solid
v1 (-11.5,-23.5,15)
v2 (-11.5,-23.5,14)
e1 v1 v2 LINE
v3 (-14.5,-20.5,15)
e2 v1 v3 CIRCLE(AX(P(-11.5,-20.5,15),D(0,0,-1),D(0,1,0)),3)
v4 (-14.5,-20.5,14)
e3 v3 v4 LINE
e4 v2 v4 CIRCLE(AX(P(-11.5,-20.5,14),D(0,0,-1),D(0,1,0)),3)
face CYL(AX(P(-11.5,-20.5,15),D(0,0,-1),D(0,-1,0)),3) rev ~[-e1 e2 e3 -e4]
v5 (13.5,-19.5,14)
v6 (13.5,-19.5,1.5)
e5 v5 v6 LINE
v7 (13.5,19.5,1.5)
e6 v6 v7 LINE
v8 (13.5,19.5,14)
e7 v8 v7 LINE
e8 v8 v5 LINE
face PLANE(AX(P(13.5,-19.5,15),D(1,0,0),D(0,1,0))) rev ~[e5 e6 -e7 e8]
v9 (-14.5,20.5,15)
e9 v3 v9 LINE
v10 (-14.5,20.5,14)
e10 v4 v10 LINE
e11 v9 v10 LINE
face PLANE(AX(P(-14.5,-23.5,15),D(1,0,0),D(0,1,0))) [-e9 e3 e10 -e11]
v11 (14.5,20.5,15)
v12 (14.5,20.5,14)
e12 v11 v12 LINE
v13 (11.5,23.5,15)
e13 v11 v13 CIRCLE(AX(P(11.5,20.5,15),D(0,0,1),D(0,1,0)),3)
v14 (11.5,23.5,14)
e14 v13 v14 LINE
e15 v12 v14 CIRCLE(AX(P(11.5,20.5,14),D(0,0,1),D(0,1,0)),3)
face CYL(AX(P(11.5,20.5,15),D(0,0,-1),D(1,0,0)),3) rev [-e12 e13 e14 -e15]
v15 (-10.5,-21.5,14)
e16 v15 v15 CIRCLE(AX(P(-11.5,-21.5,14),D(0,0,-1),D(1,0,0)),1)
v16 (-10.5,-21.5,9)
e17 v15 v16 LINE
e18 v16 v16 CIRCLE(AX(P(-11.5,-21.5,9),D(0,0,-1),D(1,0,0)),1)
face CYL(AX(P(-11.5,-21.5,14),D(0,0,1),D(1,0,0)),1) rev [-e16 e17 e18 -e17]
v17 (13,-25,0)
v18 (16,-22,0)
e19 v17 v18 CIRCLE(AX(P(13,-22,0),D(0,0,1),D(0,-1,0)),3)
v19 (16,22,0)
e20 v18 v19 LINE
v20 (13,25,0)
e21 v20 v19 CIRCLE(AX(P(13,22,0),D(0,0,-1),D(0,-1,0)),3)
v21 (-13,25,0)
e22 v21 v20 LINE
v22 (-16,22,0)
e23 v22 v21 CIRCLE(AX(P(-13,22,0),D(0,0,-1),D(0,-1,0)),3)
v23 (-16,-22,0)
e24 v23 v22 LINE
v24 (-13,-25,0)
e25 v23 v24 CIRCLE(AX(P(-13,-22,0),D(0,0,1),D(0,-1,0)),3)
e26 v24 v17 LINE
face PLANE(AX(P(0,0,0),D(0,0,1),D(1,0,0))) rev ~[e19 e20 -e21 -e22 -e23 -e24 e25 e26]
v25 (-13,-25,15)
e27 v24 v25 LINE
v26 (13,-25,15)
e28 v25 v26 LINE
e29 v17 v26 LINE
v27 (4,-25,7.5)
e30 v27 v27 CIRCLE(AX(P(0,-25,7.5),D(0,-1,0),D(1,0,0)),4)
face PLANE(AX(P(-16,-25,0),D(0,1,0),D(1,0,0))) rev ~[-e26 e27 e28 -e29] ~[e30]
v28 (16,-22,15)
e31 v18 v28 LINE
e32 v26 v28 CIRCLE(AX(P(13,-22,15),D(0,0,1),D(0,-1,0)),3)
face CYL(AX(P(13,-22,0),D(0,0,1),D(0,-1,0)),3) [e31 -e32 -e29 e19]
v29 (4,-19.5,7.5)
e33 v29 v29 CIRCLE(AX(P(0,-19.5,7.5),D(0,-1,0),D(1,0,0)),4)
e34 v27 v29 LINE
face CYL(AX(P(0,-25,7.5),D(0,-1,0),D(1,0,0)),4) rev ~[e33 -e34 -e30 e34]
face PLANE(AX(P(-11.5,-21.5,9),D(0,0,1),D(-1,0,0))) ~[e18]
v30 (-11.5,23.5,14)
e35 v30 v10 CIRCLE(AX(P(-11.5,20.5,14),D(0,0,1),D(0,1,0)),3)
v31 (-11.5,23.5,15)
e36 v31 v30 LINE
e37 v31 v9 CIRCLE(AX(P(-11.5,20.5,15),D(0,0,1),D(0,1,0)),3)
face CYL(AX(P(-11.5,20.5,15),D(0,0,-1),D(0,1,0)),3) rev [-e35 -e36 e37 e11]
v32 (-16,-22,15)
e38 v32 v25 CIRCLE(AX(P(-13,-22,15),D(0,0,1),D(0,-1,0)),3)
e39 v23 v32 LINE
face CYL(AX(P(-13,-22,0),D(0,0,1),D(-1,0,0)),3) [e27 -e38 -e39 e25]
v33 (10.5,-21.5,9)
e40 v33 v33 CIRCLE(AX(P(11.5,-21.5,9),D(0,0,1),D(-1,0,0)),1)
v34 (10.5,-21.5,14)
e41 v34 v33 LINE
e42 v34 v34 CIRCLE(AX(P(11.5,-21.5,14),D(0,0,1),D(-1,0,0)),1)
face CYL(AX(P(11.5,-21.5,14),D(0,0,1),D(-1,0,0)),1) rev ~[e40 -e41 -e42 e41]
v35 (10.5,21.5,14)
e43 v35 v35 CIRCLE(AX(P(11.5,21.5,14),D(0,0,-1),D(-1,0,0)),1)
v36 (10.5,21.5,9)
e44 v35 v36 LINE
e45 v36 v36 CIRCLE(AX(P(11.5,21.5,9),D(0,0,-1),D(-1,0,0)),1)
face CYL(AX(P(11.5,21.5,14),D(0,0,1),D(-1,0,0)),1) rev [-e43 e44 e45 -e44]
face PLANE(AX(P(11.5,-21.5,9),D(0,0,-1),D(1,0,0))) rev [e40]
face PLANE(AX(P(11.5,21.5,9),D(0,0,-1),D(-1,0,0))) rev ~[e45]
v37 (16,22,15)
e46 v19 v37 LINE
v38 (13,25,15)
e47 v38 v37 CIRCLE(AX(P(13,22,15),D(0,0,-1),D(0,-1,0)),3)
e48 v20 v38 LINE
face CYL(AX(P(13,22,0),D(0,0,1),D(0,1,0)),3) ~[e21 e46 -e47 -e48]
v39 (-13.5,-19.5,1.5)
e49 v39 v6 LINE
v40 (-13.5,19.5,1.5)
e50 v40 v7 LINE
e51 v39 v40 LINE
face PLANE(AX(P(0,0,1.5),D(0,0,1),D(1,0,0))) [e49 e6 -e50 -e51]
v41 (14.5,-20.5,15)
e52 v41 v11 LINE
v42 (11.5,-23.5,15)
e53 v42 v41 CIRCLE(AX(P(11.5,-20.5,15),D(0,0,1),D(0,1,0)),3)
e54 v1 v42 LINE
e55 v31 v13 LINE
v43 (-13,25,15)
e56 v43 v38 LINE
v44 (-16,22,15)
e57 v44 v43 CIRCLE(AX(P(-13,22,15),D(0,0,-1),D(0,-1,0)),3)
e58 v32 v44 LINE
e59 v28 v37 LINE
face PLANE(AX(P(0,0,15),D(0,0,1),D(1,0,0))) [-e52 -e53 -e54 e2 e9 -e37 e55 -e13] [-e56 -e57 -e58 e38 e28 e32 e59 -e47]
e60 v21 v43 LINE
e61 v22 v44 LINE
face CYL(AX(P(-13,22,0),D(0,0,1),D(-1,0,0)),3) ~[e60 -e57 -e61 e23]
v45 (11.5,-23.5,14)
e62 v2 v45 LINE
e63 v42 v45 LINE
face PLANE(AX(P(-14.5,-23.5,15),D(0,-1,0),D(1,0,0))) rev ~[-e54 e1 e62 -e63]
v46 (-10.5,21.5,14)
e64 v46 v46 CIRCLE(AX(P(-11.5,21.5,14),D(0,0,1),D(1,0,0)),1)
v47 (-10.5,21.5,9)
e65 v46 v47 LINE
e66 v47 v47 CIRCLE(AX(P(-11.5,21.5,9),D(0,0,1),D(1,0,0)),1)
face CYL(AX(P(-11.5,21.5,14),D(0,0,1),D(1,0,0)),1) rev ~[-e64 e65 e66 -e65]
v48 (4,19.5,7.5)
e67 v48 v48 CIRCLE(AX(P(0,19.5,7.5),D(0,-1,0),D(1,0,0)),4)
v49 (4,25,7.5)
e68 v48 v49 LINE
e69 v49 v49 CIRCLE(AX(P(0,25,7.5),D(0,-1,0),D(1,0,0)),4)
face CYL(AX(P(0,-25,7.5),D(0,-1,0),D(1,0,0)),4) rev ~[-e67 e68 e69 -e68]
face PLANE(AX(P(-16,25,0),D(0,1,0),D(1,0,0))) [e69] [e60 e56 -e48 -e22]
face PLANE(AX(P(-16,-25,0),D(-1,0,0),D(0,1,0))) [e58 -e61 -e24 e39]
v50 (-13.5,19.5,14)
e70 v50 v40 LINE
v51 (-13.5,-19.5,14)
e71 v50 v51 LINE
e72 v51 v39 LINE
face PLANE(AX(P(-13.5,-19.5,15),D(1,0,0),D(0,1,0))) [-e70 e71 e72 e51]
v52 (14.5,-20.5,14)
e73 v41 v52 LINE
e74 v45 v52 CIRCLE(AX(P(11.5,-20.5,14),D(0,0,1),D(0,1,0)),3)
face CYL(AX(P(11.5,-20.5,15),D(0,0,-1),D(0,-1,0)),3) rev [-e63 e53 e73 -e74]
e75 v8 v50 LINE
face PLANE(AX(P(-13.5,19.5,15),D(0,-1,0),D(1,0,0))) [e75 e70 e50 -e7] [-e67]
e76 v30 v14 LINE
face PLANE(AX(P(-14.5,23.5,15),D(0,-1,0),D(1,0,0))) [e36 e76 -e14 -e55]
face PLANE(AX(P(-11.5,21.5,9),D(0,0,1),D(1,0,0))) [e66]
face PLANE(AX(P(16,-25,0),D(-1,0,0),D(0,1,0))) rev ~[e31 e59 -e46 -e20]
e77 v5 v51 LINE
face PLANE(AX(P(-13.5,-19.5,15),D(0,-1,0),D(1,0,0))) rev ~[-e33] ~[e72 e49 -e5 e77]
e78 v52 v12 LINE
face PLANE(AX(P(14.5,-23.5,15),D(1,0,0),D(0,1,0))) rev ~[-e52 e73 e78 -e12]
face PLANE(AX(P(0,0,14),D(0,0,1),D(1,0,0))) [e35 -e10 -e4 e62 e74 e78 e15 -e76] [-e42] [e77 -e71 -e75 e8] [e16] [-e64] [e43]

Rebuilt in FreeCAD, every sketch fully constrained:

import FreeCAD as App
import Part
import Sketcher
from FreeCAD import Vector
Q = App.Units.Quantity


def edges_at(feature, points):
    """Names of the edges that pass closest to the given points."""
    edges = feature.Shape.Edges
    near = lambda p: min(range(len(edges)), key=lambda i: edges[i].distToShape(Part.Vertex(*p))[0])
    return sorted({f"Edge{near(p) + 1}" for p in points})


def add_polygon(sketch, points):
    """Adds a closed chain of lines whose ends are joined by coincident constraints."""
    first, n = sketch.GeometryCount, len(points)
    for a, b in zip(points, points[1:] + points[:1]):
        sketch.addGeometry(Part.LineSegment(App.Vector(*a, 0), App.Vector(*b, 0)), False)
    for i in range(n):
        sketch.addConstraint(Sketcher.Constraint("Coincident", first + i, 2, first + (i + 1) % n, 1))

doc = App.newDocument("Part")
body = doc.addObject("PartDesign::Body", "Body")

sketch1 = body.newObject("Sketcher::SketchObject", "Sketch")
sketch1.AttachmentSupport = (doc.getObject("XY_Plane"), [""])
sketch1.MapMode = "FlatFace"
add_polygon(sketch1, [(-16, 25), (-16, -25), (16, -25), (16, 25)])
sketch1.addConstraint(Sketcher.Constraint("Vertical", 0))
sketch1.addConstraint(Sketcher.Constraint("Horizontal", 1))
sketch1.addConstraint(Sketcher.Constraint("Vertical", 2))
sketch1.addConstraint(Sketcher.Constraint("Horizontal", 3))
sketch1.addConstraint(Sketcher.Constraint("Symmetric", 0, 2, 2, 2, -1, 1))
sketch1.addConstraint(Sketcher.Constraint("DistanceX", 1, 1, 1, 2, Q("32 mm")))
sketch1.addConstraint(Sketcher.Constraint("DistanceY", 0, 2, 0, 1, Q("50 mm")))
pad1 = body.newObject("PartDesign::Pad", "Pad")
pad1.Profile = sketch1
pad1.Length = 15

sketch2 = body.newObject("Sketcher::SketchObject", "Sketch001")
sketch2.AttachmentSupport = (doc.getObject("XY_Plane"), [""])
sketch2.MapMode = "FlatFace"
sketch2.AttachmentOffset = App.Placement(Vector(0, 0, 15), App.Rotation())
add_polygon(sketch2, [(-13.5, 19.5), (-13.5, -19.5), (13.5, -19.5), (13.5, 19.5)])
sketch2.addConstraint(Sketcher.Constraint("Vertical", 0))
sketch2.addConstraint(Sketcher.Constraint("Horizontal", 1))
sketch2.addConstraint(Sketcher.Constraint("Vertical", 2))
sketch2.addConstraint(Sketcher.Constraint("Horizontal", 3))
sketch2.addConstraint(Sketcher.Constraint("Symmetric", 0, 2, 2, 2, -1, 1))
sketch2.addConstraint(Sketcher.Constraint("DistanceX", 1, 1, 1, 2, Q("27 mm")))
sketch2.addConstraint(Sketcher.Constraint("DistanceY", 0, 2, 0, 1, Q("39 mm")))
pocket1 = body.newObject("PartDesign::Pocket", "Pocket")
pocket1.Profile = sketch2
pocket1.Length = 13.5
doc.recompute()

fillet = body.newObject("PartDesign::Fillet", "Fillet")
fillet.Base = (pocket1, edges_at(pocket1, [
    (-16, -25, 7.5),
    (16, -25, 7.5),
    (-16, 25, 7.5),
    (16, 25, 7.5),
]))
fillet.Radius = 3

sketch3 = body.newObject("Sketcher::SketchObject", "Sketch002")
sketch3.AttachmentSupport = (doc.getObject("XY_Plane"), [""])
sketch3.MapMode = "FlatFace"
sketch3.AttachmentOffset = App.Placement(Vector(0, 0, 15), App.Rotation())
add_polygon(sketch3, [(-14.5, 23.5), (-14.5, -23.5), (14.5, -23.5), (14.5, 23.5)])
sketch3.addConstraint(Sketcher.Constraint("Vertical", 0))
sketch3.addConstraint(Sketcher.Constraint("Horizontal", 1))
sketch3.addConstraint(Sketcher.Constraint("Vertical", 2))
sketch3.addConstraint(Sketcher.Constraint("Horizontal", 3))
sketch3.addConstraint(Sketcher.Constraint("Symmetric", 0, 2, 2, 2, -1, 1))
sketch3.addConstraint(Sketcher.Constraint("DistanceX", 1, 1, 1, 2, Q("29 mm")))
sketch3.addConstraint(Sketcher.Constraint("DistanceY", 0, 2, 0, 1, Q("47 mm")))
pocket2 = body.newObject("PartDesign::Pocket", "Pocket001")
pocket2.Profile = sketch3
pocket2.Length = 1
doc.recompute()

fillet2 = body.newObject("PartDesign::Fillet", "Fillet001")
fillet2.Base = (pocket2, edges_at(pocket2, [
    (-14.5, 23.5, 14.5),
    (14.5, 23.5, 14.5),
    (-14.5, -23.5, 14.5),
    (14.5, -23.5, 14.5),
]))
fillet2.Radius = 3

sketch4 = body.newObject("Sketcher::SketchObject", "Sketch003")
sketch4.AttachmentSupport = (doc.getObject("XZ_Plane"), [""])
sketch4.MapMode = "FlatFace"
sketch4.AttachmentOffset = App.Placement(Vector(0, 0, 25), App.Rotation())
sketch4.addGeometry(Part.Circle(Vector(0, 7.5, 0), Vector(0, 0, 1), 4), False)
sketch4.addConstraint(Sketcher.Constraint("PointOnObject", 0, 3, -2))
sketch4.addConstraint(Sketcher.Constraint("Diameter", 0, Q("8 mm")))
sketch4.addConstraint(Sketcher.Constraint("DistanceY", -1, 1, 0, 3, Q("7.5 mm")))
pocket3 = body.newObject("PartDesign::Pocket", "Pocket002")
pocket3.Profile = sketch4
pocket3.Type = "ThroughAll"

sketch5 = body.newObject("Sketcher::SketchObject", "Sketch004")
sketch5.AttachmentSupport = (doc.getObject("XY_Plane"), [""])
sketch5.MapMode = "FlatFace"
sketch5.AttachmentOffset = App.Placement(Vector(0, 0, 14), App.Rotation())
sketch5.addGeometry(Part.Circle(Vector(-11.5, 21.5, 0), Vector(0, 0, 1), 1), False)
sketch5.addConstraint(Sketcher.Constraint("Diameter", 0, Q("2 mm")))
sketch5.addConstraint(Sketcher.Constraint("DistanceX", 0, 3, -1, 1, Q("11.5 mm")))
sketch5.addConstraint(Sketcher.Constraint("DistanceY", -1, 1, 0, 3, Q("21.5 mm")))
pocket4 = body.newObject("PartDesign::Pocket", "Pocket003")
pocket4.Profile = sketch5
pocket4.Length = 5

sketch6 = body.newObject("Sketcher::SketchObject", "Sketch005")
sketch6.AttachmentSupport = (doc.getObject("XY_Plane"), [""])
sketch6.MapMode = "FlatFace"
sketch6.AttachmentOffset = App.Placement(Vector(0, 0, 14), App.Rotation())
sketch6.addGeometry(Part.Circle(Vector(11.5, 21.5, 0), Vector(0, 0, 1), 1), False)
sketch6.addConstraint(Sketcher.Constraint("Diameter", 0, Q("2 mm")))
sketch6.addConstraint(Sketcher.Constraint("DistanceX", -1, 1, 0, 3, Q("11.5 mm")))
sketch6.addConstraint(Sketcher.Constraint("DistanceY", -1, 1, 0, 3, Q("21.5 mm")))
pocket5 = body.newObject("PartDesign::Pocket", "Pocket004")
pocket5.Profile = sketch6
pocket5.Length = 5
doc.recompute()

mirrored = body.newObject("PartDesign::Mirrored", "Mirrored")
mirrored.Originals = [pocket4, pocket5]
mirrored.MirrorPlane = (doc.getObject("XZ_Plane"), [""])
body.Tip = mirrored

doc.recompute()
